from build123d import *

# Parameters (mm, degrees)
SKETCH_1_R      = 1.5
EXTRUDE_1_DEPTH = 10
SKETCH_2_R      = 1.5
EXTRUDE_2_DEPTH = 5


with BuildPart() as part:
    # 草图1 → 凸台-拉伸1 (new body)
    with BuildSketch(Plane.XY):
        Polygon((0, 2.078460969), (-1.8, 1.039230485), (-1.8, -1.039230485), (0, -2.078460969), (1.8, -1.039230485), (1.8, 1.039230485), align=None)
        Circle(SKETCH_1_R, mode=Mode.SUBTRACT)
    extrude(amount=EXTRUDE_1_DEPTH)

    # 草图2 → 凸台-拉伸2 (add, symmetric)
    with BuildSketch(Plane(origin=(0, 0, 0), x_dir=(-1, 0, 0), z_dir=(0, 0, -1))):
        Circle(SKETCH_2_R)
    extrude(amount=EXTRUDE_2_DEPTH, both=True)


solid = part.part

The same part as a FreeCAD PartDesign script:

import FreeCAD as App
import Part
import Sketcher
Q = App.Units.Quantity

doc = App.newDocument("Part")
body = doc.addObject("PartDesign::Body", "Body")

# Sketch on XY plane
sketch1 = body.newObject("Sketcher::SketchObject", "Sketch")
sketch1.AttachmentSupport = (doc.getObject("XY_Plane"), [""])
sketch1.MapMode = "FlatFace"
sketch1.addGeometry(Part.LineSegment(App.Vector(0, 2.1, 0), App.Vector(-1.8, 1, 0)), False)
sketch1.addGeometry(Part.LineSegment(App.Vector(-1.8, 1, 0), App.Vector(-1.8, -1, 0)), False)
sketch1.addGeometry(Part.LineSegment(App.Vector(-1.8, -1, 0), App.Vector(0, -2.1, 0)), False)
sketch1.addGeometry(Part.LineSegment(App.Vector(0, -2.1, 0), App.Vector(1.8, -1, 0)), False)
sketch1.addGeometry(Part.LineSegment(App.Vector(1.8, -1, 0), App.Vector(1.8, 1, 0)), False)
sketch1.addGeometry(Part.LineSegment(App.Vector(1.8, 1, 0), App.Vector(0, 2.1, 0)), False)
sketch1.addGeometry(Part.Circle(App.Vector(0, 0, 0), App.Vector(0, 0, 1), 1.5), False)
sketch1.addConstraint(Sketcher.Constraint("Coincident", 0, 2, 1, 1))
sketch1.addConstraint(Sketcher.Constraint("Coincident", 1, 2, 2, 1))
sketch1.addConstraint(Sketcher.Constraint("Coincident", 2, 2, 3, 1))
sketch1.addConstraint(Sketcher.Constraint("Coincident", 3, 2, 4, 1))
sketch1.addConstraint(Sketcher.Constraint("Coincident", 4, 2, 5, 1))
sketch1.addConstraint(Sketcher.Constraint("Coincident", 5, 2, 0, 1))
sketch1.addConstraint(Sketcher.Constraint("Vertical", 1))
sketch1.addConstraint(Sketcher.Constraint("Vertical", 4))
sketch1.addConstraint(Sketcher.Constraint("Coincident", 6, 3, -1, 1))
sketch1.addConstraint(Sketcher.Constraint("Symmetric", 0, 2, 3, 2, -1, 1))
sketch1.addConstraint(Sketcher.Constraint("Symmetric", 2, 2, 5, 2, -1, 1))
sketch1.addConstraint(Sketcher.Constraint("PointOnObject", 2, 2, -2))
sketch1.addConstraint(Sketcher.Constraint("Parallel", 2, 5))
sketch1.addConstraint(Sketcher.Constraint("Horizontal", 1, 2, 3, 2))
sketch1.addConstraint(Sketcher.Constraint("Diameter", 6, Q("3 mm")))
sketch1.addConstraint(Sketcher.Constraint("Angle", 0, Q("-150 deg")))
sketch1.addConstraint(Sketcher.Constraint("DistanceX", 0, 2, -1, 1, Q("1.8 mm")))
sketch1.addConstraint(Sketcher.Constraint("DistanceY", 1, 2, 1, 1, Q("2.078461 mm")))
pad1 = body.newObject("PartDesign::Pad", "Pad")
pad1.Profile = sketch1
pad1.Length = 10

# Sketch on XY plane
sketch2 = body.newObject("Sketcher::SketchObject", "Sketch001")
sketch2.AttachmentSupport = (doc.getObject("XY_Plane"), [""])
sketch2.MapMode = "FlatFace"
sketch2.addGeometry(Part.Circle(App.Vector(0, 0, 0), App.Vector(0, 0, 1), 1.5), False)
sketch2.addConstraint(Sketcher.Constraint("Coincident", 0, 3, -1, 1))
sketch2.addConstraint(Sketcher.Constraint("Diameter", 0, Q("3 mm")))
pad2 = body.newObject("PartDesign::Pad", "Pad001")
pad2.Profile = sketch2
pad2.Length = 10
pad2.Midplane = True

doc.recompute()
